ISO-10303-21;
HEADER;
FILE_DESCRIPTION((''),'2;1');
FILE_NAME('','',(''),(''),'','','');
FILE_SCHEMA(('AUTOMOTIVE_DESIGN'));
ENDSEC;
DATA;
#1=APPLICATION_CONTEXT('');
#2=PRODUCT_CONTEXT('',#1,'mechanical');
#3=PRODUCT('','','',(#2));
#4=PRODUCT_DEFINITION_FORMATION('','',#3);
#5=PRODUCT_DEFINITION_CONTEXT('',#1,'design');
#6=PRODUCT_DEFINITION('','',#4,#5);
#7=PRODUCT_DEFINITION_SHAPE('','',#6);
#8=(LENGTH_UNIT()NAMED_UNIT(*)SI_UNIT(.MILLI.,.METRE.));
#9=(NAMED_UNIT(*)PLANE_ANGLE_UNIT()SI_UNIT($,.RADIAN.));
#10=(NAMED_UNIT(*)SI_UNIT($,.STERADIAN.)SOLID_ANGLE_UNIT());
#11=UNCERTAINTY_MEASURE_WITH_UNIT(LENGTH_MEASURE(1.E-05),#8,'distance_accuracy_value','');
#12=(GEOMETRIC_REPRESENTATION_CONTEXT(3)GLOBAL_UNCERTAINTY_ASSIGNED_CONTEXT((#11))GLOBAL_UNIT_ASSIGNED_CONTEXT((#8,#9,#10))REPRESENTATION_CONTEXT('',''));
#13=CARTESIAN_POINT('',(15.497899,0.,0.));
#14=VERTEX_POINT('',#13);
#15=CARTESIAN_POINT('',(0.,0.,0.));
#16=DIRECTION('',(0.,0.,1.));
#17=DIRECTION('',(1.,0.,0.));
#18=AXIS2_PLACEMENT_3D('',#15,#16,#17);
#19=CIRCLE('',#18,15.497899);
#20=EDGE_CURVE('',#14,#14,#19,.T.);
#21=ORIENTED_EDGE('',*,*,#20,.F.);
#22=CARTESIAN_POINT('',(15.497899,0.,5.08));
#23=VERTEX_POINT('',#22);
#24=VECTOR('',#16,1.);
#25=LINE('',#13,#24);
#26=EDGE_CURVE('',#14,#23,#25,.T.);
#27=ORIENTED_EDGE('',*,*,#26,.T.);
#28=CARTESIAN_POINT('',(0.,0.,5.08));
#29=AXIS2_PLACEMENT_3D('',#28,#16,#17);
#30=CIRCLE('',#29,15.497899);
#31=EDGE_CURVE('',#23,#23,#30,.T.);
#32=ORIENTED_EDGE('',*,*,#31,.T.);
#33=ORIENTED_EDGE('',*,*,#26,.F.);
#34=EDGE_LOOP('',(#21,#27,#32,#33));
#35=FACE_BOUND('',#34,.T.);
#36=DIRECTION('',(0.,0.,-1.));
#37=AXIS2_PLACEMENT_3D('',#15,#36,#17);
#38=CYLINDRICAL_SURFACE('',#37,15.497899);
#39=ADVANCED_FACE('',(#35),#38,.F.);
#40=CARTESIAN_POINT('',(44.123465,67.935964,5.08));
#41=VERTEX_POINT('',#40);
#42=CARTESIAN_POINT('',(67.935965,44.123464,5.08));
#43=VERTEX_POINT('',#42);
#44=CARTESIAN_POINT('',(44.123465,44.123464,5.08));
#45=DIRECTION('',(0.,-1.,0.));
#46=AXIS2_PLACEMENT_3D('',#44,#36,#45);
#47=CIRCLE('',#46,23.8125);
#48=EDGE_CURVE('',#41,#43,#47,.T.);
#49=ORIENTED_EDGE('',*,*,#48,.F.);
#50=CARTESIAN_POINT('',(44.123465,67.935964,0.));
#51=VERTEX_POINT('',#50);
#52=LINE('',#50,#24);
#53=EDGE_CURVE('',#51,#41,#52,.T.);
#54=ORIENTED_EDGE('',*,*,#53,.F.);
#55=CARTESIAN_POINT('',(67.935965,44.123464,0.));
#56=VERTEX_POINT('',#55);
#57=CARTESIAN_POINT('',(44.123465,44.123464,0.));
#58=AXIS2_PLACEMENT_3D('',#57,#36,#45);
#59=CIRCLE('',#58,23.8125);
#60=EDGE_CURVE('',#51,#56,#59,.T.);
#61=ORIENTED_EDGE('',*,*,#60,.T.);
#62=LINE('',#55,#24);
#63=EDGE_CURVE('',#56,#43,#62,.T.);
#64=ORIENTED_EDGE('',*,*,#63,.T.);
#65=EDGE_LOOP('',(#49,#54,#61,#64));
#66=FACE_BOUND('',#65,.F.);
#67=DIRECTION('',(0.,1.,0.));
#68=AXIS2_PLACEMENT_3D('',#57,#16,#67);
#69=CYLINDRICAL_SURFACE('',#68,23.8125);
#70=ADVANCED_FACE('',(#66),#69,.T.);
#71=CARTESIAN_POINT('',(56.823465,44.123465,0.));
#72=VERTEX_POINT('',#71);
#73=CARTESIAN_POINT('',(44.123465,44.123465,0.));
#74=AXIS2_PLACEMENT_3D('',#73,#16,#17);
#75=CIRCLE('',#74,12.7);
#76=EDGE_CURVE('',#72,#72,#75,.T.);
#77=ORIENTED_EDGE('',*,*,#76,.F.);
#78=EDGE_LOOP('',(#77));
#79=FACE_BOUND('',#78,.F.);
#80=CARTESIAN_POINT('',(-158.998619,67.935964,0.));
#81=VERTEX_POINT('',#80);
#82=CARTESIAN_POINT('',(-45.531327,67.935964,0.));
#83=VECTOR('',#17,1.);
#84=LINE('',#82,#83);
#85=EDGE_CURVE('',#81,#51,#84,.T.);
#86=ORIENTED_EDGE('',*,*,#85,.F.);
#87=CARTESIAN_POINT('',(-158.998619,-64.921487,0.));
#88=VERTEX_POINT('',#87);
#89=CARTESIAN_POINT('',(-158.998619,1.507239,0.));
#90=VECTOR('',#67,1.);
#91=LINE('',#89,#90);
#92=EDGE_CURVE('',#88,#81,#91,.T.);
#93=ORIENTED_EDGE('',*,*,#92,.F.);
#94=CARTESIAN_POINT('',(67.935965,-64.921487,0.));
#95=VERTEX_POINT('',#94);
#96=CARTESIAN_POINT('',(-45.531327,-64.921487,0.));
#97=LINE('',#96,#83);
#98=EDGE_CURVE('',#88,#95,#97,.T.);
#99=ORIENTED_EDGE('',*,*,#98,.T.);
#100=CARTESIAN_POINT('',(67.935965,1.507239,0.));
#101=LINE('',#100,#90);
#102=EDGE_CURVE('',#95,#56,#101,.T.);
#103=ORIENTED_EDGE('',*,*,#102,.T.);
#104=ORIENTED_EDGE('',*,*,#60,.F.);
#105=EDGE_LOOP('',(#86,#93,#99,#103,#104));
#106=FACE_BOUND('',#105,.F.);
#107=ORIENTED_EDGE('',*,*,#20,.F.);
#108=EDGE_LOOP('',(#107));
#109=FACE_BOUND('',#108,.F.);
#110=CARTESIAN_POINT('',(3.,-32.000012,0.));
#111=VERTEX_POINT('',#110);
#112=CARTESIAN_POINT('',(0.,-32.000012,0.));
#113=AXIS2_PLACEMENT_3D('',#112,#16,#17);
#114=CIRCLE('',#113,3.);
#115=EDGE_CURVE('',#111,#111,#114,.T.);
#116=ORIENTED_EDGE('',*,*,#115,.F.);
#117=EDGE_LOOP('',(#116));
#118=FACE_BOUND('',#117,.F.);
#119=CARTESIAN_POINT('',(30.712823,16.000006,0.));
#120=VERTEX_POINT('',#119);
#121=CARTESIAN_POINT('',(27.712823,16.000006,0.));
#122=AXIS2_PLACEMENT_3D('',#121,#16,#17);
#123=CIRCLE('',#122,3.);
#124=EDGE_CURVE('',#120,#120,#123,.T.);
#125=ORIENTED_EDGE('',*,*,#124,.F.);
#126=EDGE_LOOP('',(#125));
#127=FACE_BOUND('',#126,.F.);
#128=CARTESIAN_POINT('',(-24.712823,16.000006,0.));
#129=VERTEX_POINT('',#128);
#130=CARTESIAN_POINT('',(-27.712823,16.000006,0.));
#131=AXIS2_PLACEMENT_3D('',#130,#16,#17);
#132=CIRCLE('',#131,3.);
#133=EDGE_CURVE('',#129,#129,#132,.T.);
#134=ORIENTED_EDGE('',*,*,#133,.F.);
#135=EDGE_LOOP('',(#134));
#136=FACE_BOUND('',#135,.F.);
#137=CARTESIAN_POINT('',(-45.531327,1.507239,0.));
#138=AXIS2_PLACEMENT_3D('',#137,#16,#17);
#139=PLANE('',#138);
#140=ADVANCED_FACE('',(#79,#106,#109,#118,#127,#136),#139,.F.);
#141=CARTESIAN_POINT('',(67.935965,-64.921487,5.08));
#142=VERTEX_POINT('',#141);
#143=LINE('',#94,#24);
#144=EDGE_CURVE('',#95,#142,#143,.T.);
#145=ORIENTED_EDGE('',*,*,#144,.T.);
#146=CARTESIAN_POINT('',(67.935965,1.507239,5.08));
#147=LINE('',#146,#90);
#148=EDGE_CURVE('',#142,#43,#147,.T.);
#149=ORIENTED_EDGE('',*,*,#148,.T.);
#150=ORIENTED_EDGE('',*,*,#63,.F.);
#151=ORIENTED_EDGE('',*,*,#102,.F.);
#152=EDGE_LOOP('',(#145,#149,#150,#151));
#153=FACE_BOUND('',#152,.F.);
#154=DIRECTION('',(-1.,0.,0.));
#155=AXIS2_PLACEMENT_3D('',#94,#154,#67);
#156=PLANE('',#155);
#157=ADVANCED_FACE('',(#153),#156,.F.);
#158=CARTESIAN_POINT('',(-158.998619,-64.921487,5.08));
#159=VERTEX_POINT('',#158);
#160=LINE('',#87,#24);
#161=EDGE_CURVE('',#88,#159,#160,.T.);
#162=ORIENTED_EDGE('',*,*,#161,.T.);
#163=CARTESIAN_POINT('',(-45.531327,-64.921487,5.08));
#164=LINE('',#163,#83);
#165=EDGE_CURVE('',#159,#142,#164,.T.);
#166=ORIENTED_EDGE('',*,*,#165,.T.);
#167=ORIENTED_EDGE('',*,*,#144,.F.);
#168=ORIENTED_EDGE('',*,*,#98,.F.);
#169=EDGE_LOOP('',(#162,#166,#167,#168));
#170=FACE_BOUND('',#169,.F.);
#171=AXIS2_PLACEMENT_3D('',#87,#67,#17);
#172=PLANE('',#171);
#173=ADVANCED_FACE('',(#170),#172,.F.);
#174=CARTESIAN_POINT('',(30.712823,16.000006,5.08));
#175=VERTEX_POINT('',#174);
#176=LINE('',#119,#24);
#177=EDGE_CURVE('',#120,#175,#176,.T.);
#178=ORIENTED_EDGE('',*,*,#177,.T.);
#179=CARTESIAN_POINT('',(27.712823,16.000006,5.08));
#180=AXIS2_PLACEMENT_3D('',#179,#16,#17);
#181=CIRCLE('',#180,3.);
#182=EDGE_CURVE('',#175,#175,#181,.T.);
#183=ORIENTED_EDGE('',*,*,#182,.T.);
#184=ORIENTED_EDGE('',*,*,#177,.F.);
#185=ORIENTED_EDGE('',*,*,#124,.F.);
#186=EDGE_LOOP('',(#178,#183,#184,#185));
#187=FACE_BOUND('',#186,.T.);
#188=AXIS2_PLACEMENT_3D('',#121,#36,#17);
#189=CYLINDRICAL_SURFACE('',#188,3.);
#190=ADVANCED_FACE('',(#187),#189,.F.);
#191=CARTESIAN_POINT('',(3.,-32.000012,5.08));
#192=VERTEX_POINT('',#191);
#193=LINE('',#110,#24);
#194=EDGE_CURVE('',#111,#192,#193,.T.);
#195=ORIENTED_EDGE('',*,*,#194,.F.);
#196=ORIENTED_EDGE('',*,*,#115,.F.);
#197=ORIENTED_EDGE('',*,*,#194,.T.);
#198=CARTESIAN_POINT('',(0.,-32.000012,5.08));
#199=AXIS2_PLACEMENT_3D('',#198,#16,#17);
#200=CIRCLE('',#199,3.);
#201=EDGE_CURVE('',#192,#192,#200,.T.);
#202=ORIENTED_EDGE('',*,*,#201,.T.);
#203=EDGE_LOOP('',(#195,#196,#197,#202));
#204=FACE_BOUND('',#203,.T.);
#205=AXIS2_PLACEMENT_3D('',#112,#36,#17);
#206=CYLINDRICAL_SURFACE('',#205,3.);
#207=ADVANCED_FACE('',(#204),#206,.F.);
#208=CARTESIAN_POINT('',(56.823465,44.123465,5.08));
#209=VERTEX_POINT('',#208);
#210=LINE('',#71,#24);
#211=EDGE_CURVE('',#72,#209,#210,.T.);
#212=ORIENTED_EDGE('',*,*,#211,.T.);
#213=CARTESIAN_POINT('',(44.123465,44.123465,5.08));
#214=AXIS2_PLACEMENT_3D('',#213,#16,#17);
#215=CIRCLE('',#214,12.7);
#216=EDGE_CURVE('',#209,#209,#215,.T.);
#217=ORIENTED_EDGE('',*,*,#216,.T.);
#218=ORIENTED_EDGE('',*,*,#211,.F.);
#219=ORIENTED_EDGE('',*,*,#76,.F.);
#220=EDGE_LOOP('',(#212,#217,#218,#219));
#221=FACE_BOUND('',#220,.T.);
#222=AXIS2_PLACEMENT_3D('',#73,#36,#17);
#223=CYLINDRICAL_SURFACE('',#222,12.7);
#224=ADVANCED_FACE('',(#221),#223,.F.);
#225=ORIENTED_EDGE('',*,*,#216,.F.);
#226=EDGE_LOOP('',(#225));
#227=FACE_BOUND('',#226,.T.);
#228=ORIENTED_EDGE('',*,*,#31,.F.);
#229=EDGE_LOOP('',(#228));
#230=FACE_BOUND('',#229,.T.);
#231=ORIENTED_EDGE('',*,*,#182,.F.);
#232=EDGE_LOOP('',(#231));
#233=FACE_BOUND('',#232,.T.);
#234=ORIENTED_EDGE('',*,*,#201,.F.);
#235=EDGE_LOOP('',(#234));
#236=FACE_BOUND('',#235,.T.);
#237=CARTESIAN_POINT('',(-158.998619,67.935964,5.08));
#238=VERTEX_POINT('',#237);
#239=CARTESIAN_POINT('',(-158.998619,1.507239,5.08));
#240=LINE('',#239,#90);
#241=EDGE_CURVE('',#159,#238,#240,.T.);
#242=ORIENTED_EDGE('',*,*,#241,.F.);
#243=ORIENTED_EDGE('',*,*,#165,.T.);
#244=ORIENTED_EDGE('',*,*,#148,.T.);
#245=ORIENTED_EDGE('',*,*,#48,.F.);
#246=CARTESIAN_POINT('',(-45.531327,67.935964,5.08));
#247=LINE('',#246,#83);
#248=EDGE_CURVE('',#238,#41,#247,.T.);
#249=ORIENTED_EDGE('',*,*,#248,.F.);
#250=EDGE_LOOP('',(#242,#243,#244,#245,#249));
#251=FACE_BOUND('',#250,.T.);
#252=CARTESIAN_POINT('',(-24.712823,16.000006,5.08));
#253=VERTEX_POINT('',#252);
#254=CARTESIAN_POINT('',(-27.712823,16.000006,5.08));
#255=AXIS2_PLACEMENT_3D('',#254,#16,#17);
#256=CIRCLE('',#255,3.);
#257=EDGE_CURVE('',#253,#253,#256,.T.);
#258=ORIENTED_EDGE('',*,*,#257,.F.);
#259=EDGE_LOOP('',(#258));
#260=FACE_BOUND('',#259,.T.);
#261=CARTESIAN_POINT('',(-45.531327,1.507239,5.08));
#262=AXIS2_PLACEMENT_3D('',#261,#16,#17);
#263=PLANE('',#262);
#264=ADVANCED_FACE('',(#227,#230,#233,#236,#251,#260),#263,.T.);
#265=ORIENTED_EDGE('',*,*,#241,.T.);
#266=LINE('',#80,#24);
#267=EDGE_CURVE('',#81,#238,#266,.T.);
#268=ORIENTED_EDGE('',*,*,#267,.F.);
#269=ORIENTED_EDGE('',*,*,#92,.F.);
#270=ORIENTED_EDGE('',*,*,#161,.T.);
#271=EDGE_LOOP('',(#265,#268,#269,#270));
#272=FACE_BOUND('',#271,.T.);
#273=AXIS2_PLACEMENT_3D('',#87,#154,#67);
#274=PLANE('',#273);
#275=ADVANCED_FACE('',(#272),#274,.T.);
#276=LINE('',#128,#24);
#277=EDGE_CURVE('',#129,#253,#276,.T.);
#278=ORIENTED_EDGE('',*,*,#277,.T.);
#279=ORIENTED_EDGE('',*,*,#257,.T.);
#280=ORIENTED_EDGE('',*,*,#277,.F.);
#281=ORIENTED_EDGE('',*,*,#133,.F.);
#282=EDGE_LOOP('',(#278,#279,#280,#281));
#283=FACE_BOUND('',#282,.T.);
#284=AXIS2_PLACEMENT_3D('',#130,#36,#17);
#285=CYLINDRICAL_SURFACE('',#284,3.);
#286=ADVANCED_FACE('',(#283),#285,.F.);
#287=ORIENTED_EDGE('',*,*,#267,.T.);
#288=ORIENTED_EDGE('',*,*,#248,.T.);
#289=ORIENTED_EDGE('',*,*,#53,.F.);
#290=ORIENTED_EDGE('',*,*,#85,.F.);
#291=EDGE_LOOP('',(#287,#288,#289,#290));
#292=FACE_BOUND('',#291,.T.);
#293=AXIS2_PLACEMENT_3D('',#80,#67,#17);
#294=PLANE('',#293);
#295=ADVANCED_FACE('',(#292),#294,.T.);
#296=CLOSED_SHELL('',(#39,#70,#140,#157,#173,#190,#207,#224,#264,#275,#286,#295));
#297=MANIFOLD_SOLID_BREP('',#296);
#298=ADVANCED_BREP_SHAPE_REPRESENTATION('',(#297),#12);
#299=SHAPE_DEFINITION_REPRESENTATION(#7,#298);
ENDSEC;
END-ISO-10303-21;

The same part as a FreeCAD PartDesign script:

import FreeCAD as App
import Part
import Sketcher

V = App.Vector
Q = App.Units.Quantity


def edges_at(feature, points):
    """Names of the edges that pass closest to the given points."""
    edges = feature.Shape.Edges
    near = lambda p: min(range(len(edges)), key=lambda i: edges[i].distToShape(Part.Vertex(*p))[0])
    return sorted({f"Edge{near(p) + 1}" for p in points})

doc = App.newDocument("Part")
body = doc.addObject("PartDesign::Body", "Body")

sketch1 = doc.addObject("Sketcher::SketchObject", "Sketch")
body.addObject(sketch1)
sketch1.AttachmentSupport = (doc.XY_Plane, [""])
sketch1.MapMode = "FlatFace"
sketch1.addGeometry(Part.LineSegment(V(-158.998619, 67.935964, 0), V(-158.998619, -64.921487, 0)), False)
sketch1.addGeometry(Part.LineSegment(V(-158.998619, -64.921487, 0), V(67.935965, -64.921487, 0)), False)
sketch1.addGeometry(Part.LineSegment(V(67.935965, -64.921487, 0), V(67.935965, 67.935964, 0)), False)
sketch1.addGeometry(Part.LineSegment(V(67.935965, 67.935964, 0), V(-158.998619, 67.935964, 0)), False)
sketch1.addGeometry(Part.Circle(V(0, -32.000012, 0), V(0, 0, 1), 3), False)
sketch1.addGeometry(Part.Circle(V(0, 0, 0), V(0, 0, 1), 15.497899), False)
sketch1.addGeometry(Part.Circle(V(-27.712823, 16.000006, 0), V(0, 0, 1), 3), False)
sketch1.addGeometry(Part.Circle(V(27.712823, 16.000006, 0), V(0, 0, 1), 3), False)
sketch1.addGeometry(Part.Circle(V(44.123465, 44.123465, 0), V(0, 0, 1), 12.7), False)
sketch1.addConstraint(Sketcher.Constraint("Coincident", 0, 2, 1, 1))
sketch1.addConstraint(Sketcher.Constraint("Coincident", 1, 2, 2, 1))
sketch1.addConstraint(Sketcher.Constraint("Coincident", 2, 2, 3, 1))
sketch1.addConstraint(Sketcher.Constraint("Coincident", 3, 2, 0, 1))
sketch1.addConstraint(Sketcher.Constraint("Vertical", 0))
sketch1.addConstraint(Sketcher.Constraint("Horizontal", 1))
sketch1.addConstraint(Sketcher.Constraint("Vertical", 2))
sketch1.addConstraint(Sketcher.Constraint("Horizontal", 3))
sketch1.addConstraint(Sketcher.Constraint("Coincident", 5, 3, -1, 1))
sketch1.addConstraint(Sketcher.Constraint("Equal", 4, 6))
sketch1.addConstraint(Sketcher.Constraint("Equal", 6, 7))
sketch1.addConstraint(Sketcher.Constraint("Symmetric", 6, 3, 7, 3, -2))
sketch1.addConstraint(Sketcher.Constraint("PointOnObject", 4, 3, -2))
sketch1.addConstraint(Sketcher.Constraint("Diameter", 8, Q("1 in")))
sketch1.addConstraint(Sketcher.Constraint("Diameter", 4, 6.0))
sketch1.addConstraint(Sketcher.Constraint("Diameter", 5, 30.995798))
sketch1.addConstraint(Sketcher.Constraint("DistanceX", 8, 3, 1, 2, Q("0.9375 in")))
sketch1.addConstraint(Sketcher.Constraint("DistanceY", 8, 3, 2, 2, Q("0.9375 in")))
sketch1.addConstraint(Sketcher.Constraint("DistanceY", 0, 2, 0, 1, 132.857451))
sketch1.addConstraint(Sketcher.Constraint("DistanceX", 1, 1, 1, 2, 226.934584))
sketch1.addConstraint(Sketcher.Constraint("DistanceY", 4, 3, -1, 1, 32.000012))
sketch1.addConstraint(Sketcher.Constraint("DistanceX", 0, 2, -1, 1, 158.998619))
sketch1.addConstraint(Sketcher.Constraint("DistanceY", 7, 3, 8, 3, 28.123459))
sketch1.addConstraint(Sketcher.Constraint("DistanceX", 0, 2, 7, 3, 186.711442))
sketch1.addConstraint(Sketcher.Constraint("DistanceY", -1, 1, 6, 3, 16.000006))
pad1 = doc.addObject("PartDesign::Pad", "Pad")
body.addObject(pad1)
pad1.Profile = sketch1
pad1.Length = Q("0.2 in")
doc.recompute()

fillet = doc.addObject("PartDesign::Fillet", "Fillet")
body.addObject(fillet)
fillet.Base = (pad1, edges_at(pad1, [(67.936, 67.936, 2.54)]))
fillet.Radius = Q("0.9375 in")

doc.recompute()
